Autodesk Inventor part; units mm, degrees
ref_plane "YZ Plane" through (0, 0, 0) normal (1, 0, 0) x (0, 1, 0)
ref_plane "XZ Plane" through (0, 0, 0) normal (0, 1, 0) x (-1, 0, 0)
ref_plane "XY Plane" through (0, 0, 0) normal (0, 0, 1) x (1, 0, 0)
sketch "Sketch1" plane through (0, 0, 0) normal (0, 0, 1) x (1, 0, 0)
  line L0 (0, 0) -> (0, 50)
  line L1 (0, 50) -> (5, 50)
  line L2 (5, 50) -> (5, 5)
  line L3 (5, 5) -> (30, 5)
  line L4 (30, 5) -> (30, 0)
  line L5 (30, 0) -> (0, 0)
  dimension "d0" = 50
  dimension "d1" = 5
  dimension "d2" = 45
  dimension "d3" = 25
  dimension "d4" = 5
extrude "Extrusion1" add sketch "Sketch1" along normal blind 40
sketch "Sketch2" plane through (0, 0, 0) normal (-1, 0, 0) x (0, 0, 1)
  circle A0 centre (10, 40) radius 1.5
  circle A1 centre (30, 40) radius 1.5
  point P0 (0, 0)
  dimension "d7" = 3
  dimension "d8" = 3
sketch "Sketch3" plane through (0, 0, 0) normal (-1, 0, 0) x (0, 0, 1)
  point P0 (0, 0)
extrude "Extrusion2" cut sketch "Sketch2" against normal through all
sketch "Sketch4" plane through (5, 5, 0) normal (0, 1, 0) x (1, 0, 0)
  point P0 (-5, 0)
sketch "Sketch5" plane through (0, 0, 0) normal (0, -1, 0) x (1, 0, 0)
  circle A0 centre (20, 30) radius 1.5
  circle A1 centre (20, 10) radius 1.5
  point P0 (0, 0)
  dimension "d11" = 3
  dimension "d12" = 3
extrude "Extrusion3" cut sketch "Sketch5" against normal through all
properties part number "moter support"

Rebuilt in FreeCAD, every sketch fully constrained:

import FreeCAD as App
import Part
import Sketcher

V = App.Vector
Q = App.Units.Quantity

doc = App.newDocument("Part")
body = doc.addObject("PartDesign::Body", "Body")

# Sketch on XY plane
sketch1 = doc.addObject("Sketcher::SketchObject", "Sketch")
body.addObject(sketch1)
sketch1.AttachmentSupport = (doc.XY_Plane, [""])
sketch1.MapMode = "FlatFace"
sketch1.addGeometry([
    Part.LineSegment(V(0, 50, 0), V(0, 0, 0)),  # 0
    Part.LineSegment(V(0, 0, 0), V(30, 0, 0)),  # 1
    Part.LineSegment(V(30, 0, 0), V(30, 5, 0)),  # 2
    Part.LineSegment(V(30, 5, 0), V(5, 5, 0)),  # 3
    Part.LineSegment(V(5, 5, 0), V(5, 50, 0)),  # 4
    Part.LineSegment(V(5, 50, 0), V(0, 50, 0)),  # 5
], False)
sketch1.addConstraint([
    Sketcher.Constraint("Coincident", 0, 2, 1, 1),
    Sketcher.Constraint("Coincident", 1, 2, 2, 1),
    Sketcher.Constraint("Coincident", 2, 2, 3, 1),
    Sketcher.Constraint("Coincident", 3, 2, 4, 1),
    Sketcher.Constraint("Coincident", 4, 2, 5, 1),
    Sketcher.Constraint("Coincident", 5, 2, 0, 1),
    Sketcher.Constraint("Vertical", 0),
    Sketcher.Constraint("Horizontal", 1),
    Sketcher.Constraint("Vertical", 2),
    Sketcher.Constraint("Horizontal", 3),
    Sketcher.Constraint("Vertical", 4),
    Sketcher.Constraint("Horizontal", 5),
    Sketcher.Constraint("Coincident", 0, 2, -1, 1),
    Sketcher.Constraint("Equal", 5, 2),
    Sketcher.Constraint("DistanceX", 3, 2, 3, 1, Q("25 mm")),
    Sketcher.Constraint("DistanceX", 5, 2, 5, 1, Q("5 mm")),
    Sketcher.Constraint("DistanceY", 0, 2, 0, 1, Q("50 mm")),
])
pad1 = doc.addObject("PartDesign::Pad", "Pad")
body.addObject(pad1)
pad1.Profile = sketch1
pad1.Length = 40

# Sketch on YZ plane
sketch2 = doc.addObject("Sketcher::SketchObject", "Sketch001")
body.addObject(sketch2)
sketch2.AttachmentSupport = (doc.YZ_Plane, [""])
sketch2.MapMode = "FlatFace"
sketch2.addGeometry([
    Part.Circle(V(40, 10, 0), V(0, 0, 1), 1.5),
    Part.Circle(V(40, 30, 0), V(0, 0, 1), 1.5),
], False)
sketch2.addConstraint([
    Sketcher.Constraint("Equal", 0, 1),
    Sketcher.Constraint("Vertical", 0, 3, 1, 3),
    Sketcher.Constraint("Diameter", 0, Q("3 mm")),
    Sketcher.Constraint("DistanceX", -1, 1, 0, 3, Q("40 mm")),
    Sketcher.Constraint("DistanceY", -1, 1, 0, 3, Q("10 mm")),
    Sketcher.Constraint("DistanceY", -1, 1, 1, 3, Q("30 mm")),
])
pocket1 = doc.addObject("PartDesign::Pocket", "Pocket")
body.addObject(pocket1)
pocket1.Profile = sketch2
pocket1.Type = "ThroughAll"
pocket1.Reversed = True

# Sketch on XZ plane
sketch3 = doc.addObject("Sketcher::SketchObject", "Sketch002")
body.addObject(sketch3)
sketch3.AttachmentSupport = (doc.XZ_Plane, [""])
sketch3.MapMode = "FlatFace"
sketch3.addGeometry([
    Part.Circle(V(20, 30, 0), V(0, 0, 1), 1.5),
    Part.Circle(V(20, 10, 0), V(0, 0, 1), 1.5),
], False)
sketch3.addConstraint([
    Sketcher.Constraint("Equal", 0, 1),
    Sketcher.Constraint("Vertical", 0, 3, 1, 3),
    Sketcher.Constraint("Diameter", 0, Q("3 mm")),
    Sketcher.Constraint("DistanceX", -1, 1, 0, 3, Q("20 mm")),
    Sketcher.Constraint("DistanceY", -1, 1, 0, 3, Q("30 mm")),
    Sketcher.Constraint("DistanceY", -1, 1, 1, 3, Q("10 mm")),
])
pocket2 = doc.addObject("PartDesign::Pocket", "Pocket001")
body.addObject(pocket2)
pocket2.Profile = sketch3
pocket2.Type = "ThroughAll"

doc.recompute()
